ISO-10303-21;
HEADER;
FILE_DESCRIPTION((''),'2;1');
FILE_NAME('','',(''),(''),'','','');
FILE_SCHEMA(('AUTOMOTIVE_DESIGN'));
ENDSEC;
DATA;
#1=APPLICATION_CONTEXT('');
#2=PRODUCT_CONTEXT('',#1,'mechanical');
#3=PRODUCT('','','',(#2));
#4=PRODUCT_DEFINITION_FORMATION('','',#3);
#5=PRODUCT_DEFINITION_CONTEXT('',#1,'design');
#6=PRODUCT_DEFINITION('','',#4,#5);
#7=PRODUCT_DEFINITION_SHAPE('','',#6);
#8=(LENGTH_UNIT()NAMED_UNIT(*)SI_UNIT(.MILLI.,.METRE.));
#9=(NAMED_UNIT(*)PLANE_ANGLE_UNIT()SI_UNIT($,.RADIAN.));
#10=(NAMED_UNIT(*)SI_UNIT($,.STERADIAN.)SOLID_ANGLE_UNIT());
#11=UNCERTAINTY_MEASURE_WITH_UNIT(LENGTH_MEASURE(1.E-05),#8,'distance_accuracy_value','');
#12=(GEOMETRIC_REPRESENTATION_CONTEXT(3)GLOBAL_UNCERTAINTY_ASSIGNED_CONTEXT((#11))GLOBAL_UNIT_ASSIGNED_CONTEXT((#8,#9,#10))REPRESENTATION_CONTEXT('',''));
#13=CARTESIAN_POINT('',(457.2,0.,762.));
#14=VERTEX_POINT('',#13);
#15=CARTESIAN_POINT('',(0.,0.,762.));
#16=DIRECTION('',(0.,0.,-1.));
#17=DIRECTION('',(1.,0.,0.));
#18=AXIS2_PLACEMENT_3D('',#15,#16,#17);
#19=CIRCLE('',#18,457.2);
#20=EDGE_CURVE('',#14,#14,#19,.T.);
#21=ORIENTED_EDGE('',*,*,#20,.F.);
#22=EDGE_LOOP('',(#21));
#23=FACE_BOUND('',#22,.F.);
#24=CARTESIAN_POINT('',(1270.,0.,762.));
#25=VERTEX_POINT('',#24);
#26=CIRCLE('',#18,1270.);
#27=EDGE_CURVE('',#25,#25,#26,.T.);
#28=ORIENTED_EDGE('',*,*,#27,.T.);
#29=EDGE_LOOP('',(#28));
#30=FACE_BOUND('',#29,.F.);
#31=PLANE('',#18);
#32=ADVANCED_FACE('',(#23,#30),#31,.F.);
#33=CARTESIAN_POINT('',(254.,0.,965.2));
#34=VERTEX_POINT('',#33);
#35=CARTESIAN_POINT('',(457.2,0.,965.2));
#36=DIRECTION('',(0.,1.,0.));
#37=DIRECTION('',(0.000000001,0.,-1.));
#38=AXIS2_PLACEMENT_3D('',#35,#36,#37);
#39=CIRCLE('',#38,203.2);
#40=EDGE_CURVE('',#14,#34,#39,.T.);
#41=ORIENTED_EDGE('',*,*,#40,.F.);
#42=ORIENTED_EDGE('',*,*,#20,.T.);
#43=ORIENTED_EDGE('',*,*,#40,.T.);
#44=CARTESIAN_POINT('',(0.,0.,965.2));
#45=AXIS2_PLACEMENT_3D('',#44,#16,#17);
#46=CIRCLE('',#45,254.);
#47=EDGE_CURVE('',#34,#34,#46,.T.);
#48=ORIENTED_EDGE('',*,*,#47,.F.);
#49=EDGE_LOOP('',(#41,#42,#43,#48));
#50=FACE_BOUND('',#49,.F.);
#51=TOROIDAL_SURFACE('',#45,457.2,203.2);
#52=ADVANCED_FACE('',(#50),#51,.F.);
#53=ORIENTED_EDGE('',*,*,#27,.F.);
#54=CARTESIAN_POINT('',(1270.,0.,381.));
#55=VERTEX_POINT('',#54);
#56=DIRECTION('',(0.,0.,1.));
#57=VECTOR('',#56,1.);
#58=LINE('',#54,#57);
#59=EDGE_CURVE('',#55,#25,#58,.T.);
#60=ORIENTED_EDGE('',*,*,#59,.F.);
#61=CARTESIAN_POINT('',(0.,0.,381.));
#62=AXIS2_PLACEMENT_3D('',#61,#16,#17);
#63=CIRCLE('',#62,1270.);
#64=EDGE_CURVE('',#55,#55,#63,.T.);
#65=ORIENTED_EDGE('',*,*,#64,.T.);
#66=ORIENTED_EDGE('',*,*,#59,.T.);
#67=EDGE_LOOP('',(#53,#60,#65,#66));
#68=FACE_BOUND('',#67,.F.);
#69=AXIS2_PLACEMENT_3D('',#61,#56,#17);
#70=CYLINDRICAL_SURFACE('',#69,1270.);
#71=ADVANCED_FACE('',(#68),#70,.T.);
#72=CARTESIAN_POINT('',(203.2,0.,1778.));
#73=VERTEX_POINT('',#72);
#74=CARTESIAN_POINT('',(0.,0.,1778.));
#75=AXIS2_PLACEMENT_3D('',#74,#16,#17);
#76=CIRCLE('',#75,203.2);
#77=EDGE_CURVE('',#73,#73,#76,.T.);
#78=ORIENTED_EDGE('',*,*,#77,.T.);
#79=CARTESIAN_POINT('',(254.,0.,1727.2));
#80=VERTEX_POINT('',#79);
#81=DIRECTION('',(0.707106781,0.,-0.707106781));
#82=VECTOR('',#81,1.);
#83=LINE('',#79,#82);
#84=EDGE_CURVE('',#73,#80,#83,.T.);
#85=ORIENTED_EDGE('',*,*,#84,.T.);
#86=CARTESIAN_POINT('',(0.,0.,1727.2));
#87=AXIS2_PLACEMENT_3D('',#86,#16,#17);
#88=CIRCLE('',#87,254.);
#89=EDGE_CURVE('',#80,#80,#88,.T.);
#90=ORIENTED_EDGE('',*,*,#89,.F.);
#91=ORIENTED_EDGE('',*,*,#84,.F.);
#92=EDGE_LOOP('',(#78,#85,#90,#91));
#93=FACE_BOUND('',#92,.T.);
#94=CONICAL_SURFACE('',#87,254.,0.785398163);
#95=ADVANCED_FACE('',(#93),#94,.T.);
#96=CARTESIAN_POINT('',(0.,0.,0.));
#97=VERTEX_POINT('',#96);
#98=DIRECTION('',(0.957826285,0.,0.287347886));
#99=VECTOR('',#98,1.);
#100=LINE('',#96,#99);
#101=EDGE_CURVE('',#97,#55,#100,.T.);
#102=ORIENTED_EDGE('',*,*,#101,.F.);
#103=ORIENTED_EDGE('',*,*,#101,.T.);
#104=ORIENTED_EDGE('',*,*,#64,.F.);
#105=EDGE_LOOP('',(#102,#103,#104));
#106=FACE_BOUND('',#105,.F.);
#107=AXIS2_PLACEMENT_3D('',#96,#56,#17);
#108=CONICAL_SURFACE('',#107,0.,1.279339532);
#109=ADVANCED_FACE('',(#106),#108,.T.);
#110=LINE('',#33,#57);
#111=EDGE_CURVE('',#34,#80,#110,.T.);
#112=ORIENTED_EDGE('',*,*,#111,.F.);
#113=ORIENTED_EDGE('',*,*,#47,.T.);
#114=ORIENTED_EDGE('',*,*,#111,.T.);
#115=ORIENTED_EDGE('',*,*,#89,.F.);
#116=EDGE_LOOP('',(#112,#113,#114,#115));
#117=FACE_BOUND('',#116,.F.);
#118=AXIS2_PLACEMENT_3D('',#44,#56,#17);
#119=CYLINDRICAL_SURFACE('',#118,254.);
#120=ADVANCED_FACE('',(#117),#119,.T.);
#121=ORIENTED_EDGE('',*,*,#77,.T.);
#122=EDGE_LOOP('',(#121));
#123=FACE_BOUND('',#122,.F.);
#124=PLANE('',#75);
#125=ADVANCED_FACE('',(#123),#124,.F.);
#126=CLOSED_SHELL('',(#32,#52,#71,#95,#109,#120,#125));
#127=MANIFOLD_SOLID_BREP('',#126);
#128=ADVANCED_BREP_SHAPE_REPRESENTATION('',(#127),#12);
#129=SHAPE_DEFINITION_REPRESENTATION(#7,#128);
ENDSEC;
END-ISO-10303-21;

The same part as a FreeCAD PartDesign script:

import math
import FreeCAD as App
import Part
import Sketcher

V = App.Vector
Q = App.Units.Quantity


def edges_at(feature, points):
    """Names of the edges that pass closest to the given points."""
    edges = feature.Shape.Edges
    near = lambda p: min(range(len(edges)), key=lambda i: edges[i].distToShape(Part.Vertex(*p))[0])
    return sorted({f"Edge{near(p) + 1}" for p in points})

doc = App.newDocument("Part")
body = doc.addObject("PartDesign::Body", "Body")

# Sketch on XZ plane
sketch1 = body.newObject("Sketcher::SketchObject", "Sketch")
sketch1.AttachmentSupport = (doc.getObject("XZ_Plane"), [""])
sketch1.MapMode = "FlatFace"
sketch1.addGeometry([
    Part.LineSegment(V(254, 1778, 0), V(0, 1778, 0)),  # 0
    Part.LineSegment(V(0, 1778, 0), V(0, 0, 0)),  # 1
    Part.LineSegment(V(0, 0, 0), V(1270, 381, 0)),  # 2
    Part.LineSegment(V(1270, 381, 0), V(1270, 762, 0)),  # 3
    Part.LineSegment(V(1270, 762, 0), V(457, 762, 0)),  # 4
    Part.ArcOfCircle(Part.Circle(V(457, 965, 0), V(0, 0, 1), 203), math.radians(180), math.radians(270)),  # 5
    Part.LineSegment(V(254, 965, 0), V(254, 1778, 0)),  # 6
], False)
sketch1.addConstraint([
    Sketcher.Constraint("Coincident", 0, 2, 1, 1),
    Sketcher.Constraint("Coincident", 1, 2, 2, 1),
    Sketcher.Constraint("Coincident", 2, 2, 3, 1),
    Sketcher.Constraint("Coincident", 3, 2, 4, 1),
    Sketcher.Constraint("Tangent", 4, 2, 5, 2),
    Sketcher.Constraint("Tangent", 5, 1, 6, 1),
    Sketcher.Constraint("Coincident", 6, 2, 0, 1),
    Sketcher.Constraint("Horizontal", 0),
    Sketcher.Constraint("Vertical", 1),
    Sketcher.Constraint("Vertical", 3),
    Sketcher.Constraint("Horizontal", 4),
    Sketcher.Constraint("Vertical", 6),
    Sketcher.Constraint("Coincident", 1, 2, -1, 1),
    Sketcher.Constraint("Equal", 4, 6),
    Sketcher.Constraint("Radius", 5, Q("8 in")),
    Sketcher.Constraint("DistanceX", 0, 2, 0, 1, Q("10 in")),
    Sketcher.Constraint("DistanceX", 4, 2, 4, 1, Q("32 in")),
    Sketcher.Constraint("DistanceY", 1, 2, 1, 1, Q("70 in")),
    Sketcher.Constraint("DistanceY", 3, 1, 3, 2, Q("15 in")),
])
revolution = body.newObject("PartDesign::Revolution", "Revolution")
revolution.Profile = sketch1
revolution.ReferenceAxis = (sketch1, ["V_Axis"])
revolution.Angle = 360
doc.recompute()

chamfer = body.newObject("PartDesign::Chamfer", "Chamfer")
chamfer.Base = (revolution, edges_at(revolution, [(-254, 0, 1778)]))
chamfer.Size = Q("2 in")

doc.recompute()
